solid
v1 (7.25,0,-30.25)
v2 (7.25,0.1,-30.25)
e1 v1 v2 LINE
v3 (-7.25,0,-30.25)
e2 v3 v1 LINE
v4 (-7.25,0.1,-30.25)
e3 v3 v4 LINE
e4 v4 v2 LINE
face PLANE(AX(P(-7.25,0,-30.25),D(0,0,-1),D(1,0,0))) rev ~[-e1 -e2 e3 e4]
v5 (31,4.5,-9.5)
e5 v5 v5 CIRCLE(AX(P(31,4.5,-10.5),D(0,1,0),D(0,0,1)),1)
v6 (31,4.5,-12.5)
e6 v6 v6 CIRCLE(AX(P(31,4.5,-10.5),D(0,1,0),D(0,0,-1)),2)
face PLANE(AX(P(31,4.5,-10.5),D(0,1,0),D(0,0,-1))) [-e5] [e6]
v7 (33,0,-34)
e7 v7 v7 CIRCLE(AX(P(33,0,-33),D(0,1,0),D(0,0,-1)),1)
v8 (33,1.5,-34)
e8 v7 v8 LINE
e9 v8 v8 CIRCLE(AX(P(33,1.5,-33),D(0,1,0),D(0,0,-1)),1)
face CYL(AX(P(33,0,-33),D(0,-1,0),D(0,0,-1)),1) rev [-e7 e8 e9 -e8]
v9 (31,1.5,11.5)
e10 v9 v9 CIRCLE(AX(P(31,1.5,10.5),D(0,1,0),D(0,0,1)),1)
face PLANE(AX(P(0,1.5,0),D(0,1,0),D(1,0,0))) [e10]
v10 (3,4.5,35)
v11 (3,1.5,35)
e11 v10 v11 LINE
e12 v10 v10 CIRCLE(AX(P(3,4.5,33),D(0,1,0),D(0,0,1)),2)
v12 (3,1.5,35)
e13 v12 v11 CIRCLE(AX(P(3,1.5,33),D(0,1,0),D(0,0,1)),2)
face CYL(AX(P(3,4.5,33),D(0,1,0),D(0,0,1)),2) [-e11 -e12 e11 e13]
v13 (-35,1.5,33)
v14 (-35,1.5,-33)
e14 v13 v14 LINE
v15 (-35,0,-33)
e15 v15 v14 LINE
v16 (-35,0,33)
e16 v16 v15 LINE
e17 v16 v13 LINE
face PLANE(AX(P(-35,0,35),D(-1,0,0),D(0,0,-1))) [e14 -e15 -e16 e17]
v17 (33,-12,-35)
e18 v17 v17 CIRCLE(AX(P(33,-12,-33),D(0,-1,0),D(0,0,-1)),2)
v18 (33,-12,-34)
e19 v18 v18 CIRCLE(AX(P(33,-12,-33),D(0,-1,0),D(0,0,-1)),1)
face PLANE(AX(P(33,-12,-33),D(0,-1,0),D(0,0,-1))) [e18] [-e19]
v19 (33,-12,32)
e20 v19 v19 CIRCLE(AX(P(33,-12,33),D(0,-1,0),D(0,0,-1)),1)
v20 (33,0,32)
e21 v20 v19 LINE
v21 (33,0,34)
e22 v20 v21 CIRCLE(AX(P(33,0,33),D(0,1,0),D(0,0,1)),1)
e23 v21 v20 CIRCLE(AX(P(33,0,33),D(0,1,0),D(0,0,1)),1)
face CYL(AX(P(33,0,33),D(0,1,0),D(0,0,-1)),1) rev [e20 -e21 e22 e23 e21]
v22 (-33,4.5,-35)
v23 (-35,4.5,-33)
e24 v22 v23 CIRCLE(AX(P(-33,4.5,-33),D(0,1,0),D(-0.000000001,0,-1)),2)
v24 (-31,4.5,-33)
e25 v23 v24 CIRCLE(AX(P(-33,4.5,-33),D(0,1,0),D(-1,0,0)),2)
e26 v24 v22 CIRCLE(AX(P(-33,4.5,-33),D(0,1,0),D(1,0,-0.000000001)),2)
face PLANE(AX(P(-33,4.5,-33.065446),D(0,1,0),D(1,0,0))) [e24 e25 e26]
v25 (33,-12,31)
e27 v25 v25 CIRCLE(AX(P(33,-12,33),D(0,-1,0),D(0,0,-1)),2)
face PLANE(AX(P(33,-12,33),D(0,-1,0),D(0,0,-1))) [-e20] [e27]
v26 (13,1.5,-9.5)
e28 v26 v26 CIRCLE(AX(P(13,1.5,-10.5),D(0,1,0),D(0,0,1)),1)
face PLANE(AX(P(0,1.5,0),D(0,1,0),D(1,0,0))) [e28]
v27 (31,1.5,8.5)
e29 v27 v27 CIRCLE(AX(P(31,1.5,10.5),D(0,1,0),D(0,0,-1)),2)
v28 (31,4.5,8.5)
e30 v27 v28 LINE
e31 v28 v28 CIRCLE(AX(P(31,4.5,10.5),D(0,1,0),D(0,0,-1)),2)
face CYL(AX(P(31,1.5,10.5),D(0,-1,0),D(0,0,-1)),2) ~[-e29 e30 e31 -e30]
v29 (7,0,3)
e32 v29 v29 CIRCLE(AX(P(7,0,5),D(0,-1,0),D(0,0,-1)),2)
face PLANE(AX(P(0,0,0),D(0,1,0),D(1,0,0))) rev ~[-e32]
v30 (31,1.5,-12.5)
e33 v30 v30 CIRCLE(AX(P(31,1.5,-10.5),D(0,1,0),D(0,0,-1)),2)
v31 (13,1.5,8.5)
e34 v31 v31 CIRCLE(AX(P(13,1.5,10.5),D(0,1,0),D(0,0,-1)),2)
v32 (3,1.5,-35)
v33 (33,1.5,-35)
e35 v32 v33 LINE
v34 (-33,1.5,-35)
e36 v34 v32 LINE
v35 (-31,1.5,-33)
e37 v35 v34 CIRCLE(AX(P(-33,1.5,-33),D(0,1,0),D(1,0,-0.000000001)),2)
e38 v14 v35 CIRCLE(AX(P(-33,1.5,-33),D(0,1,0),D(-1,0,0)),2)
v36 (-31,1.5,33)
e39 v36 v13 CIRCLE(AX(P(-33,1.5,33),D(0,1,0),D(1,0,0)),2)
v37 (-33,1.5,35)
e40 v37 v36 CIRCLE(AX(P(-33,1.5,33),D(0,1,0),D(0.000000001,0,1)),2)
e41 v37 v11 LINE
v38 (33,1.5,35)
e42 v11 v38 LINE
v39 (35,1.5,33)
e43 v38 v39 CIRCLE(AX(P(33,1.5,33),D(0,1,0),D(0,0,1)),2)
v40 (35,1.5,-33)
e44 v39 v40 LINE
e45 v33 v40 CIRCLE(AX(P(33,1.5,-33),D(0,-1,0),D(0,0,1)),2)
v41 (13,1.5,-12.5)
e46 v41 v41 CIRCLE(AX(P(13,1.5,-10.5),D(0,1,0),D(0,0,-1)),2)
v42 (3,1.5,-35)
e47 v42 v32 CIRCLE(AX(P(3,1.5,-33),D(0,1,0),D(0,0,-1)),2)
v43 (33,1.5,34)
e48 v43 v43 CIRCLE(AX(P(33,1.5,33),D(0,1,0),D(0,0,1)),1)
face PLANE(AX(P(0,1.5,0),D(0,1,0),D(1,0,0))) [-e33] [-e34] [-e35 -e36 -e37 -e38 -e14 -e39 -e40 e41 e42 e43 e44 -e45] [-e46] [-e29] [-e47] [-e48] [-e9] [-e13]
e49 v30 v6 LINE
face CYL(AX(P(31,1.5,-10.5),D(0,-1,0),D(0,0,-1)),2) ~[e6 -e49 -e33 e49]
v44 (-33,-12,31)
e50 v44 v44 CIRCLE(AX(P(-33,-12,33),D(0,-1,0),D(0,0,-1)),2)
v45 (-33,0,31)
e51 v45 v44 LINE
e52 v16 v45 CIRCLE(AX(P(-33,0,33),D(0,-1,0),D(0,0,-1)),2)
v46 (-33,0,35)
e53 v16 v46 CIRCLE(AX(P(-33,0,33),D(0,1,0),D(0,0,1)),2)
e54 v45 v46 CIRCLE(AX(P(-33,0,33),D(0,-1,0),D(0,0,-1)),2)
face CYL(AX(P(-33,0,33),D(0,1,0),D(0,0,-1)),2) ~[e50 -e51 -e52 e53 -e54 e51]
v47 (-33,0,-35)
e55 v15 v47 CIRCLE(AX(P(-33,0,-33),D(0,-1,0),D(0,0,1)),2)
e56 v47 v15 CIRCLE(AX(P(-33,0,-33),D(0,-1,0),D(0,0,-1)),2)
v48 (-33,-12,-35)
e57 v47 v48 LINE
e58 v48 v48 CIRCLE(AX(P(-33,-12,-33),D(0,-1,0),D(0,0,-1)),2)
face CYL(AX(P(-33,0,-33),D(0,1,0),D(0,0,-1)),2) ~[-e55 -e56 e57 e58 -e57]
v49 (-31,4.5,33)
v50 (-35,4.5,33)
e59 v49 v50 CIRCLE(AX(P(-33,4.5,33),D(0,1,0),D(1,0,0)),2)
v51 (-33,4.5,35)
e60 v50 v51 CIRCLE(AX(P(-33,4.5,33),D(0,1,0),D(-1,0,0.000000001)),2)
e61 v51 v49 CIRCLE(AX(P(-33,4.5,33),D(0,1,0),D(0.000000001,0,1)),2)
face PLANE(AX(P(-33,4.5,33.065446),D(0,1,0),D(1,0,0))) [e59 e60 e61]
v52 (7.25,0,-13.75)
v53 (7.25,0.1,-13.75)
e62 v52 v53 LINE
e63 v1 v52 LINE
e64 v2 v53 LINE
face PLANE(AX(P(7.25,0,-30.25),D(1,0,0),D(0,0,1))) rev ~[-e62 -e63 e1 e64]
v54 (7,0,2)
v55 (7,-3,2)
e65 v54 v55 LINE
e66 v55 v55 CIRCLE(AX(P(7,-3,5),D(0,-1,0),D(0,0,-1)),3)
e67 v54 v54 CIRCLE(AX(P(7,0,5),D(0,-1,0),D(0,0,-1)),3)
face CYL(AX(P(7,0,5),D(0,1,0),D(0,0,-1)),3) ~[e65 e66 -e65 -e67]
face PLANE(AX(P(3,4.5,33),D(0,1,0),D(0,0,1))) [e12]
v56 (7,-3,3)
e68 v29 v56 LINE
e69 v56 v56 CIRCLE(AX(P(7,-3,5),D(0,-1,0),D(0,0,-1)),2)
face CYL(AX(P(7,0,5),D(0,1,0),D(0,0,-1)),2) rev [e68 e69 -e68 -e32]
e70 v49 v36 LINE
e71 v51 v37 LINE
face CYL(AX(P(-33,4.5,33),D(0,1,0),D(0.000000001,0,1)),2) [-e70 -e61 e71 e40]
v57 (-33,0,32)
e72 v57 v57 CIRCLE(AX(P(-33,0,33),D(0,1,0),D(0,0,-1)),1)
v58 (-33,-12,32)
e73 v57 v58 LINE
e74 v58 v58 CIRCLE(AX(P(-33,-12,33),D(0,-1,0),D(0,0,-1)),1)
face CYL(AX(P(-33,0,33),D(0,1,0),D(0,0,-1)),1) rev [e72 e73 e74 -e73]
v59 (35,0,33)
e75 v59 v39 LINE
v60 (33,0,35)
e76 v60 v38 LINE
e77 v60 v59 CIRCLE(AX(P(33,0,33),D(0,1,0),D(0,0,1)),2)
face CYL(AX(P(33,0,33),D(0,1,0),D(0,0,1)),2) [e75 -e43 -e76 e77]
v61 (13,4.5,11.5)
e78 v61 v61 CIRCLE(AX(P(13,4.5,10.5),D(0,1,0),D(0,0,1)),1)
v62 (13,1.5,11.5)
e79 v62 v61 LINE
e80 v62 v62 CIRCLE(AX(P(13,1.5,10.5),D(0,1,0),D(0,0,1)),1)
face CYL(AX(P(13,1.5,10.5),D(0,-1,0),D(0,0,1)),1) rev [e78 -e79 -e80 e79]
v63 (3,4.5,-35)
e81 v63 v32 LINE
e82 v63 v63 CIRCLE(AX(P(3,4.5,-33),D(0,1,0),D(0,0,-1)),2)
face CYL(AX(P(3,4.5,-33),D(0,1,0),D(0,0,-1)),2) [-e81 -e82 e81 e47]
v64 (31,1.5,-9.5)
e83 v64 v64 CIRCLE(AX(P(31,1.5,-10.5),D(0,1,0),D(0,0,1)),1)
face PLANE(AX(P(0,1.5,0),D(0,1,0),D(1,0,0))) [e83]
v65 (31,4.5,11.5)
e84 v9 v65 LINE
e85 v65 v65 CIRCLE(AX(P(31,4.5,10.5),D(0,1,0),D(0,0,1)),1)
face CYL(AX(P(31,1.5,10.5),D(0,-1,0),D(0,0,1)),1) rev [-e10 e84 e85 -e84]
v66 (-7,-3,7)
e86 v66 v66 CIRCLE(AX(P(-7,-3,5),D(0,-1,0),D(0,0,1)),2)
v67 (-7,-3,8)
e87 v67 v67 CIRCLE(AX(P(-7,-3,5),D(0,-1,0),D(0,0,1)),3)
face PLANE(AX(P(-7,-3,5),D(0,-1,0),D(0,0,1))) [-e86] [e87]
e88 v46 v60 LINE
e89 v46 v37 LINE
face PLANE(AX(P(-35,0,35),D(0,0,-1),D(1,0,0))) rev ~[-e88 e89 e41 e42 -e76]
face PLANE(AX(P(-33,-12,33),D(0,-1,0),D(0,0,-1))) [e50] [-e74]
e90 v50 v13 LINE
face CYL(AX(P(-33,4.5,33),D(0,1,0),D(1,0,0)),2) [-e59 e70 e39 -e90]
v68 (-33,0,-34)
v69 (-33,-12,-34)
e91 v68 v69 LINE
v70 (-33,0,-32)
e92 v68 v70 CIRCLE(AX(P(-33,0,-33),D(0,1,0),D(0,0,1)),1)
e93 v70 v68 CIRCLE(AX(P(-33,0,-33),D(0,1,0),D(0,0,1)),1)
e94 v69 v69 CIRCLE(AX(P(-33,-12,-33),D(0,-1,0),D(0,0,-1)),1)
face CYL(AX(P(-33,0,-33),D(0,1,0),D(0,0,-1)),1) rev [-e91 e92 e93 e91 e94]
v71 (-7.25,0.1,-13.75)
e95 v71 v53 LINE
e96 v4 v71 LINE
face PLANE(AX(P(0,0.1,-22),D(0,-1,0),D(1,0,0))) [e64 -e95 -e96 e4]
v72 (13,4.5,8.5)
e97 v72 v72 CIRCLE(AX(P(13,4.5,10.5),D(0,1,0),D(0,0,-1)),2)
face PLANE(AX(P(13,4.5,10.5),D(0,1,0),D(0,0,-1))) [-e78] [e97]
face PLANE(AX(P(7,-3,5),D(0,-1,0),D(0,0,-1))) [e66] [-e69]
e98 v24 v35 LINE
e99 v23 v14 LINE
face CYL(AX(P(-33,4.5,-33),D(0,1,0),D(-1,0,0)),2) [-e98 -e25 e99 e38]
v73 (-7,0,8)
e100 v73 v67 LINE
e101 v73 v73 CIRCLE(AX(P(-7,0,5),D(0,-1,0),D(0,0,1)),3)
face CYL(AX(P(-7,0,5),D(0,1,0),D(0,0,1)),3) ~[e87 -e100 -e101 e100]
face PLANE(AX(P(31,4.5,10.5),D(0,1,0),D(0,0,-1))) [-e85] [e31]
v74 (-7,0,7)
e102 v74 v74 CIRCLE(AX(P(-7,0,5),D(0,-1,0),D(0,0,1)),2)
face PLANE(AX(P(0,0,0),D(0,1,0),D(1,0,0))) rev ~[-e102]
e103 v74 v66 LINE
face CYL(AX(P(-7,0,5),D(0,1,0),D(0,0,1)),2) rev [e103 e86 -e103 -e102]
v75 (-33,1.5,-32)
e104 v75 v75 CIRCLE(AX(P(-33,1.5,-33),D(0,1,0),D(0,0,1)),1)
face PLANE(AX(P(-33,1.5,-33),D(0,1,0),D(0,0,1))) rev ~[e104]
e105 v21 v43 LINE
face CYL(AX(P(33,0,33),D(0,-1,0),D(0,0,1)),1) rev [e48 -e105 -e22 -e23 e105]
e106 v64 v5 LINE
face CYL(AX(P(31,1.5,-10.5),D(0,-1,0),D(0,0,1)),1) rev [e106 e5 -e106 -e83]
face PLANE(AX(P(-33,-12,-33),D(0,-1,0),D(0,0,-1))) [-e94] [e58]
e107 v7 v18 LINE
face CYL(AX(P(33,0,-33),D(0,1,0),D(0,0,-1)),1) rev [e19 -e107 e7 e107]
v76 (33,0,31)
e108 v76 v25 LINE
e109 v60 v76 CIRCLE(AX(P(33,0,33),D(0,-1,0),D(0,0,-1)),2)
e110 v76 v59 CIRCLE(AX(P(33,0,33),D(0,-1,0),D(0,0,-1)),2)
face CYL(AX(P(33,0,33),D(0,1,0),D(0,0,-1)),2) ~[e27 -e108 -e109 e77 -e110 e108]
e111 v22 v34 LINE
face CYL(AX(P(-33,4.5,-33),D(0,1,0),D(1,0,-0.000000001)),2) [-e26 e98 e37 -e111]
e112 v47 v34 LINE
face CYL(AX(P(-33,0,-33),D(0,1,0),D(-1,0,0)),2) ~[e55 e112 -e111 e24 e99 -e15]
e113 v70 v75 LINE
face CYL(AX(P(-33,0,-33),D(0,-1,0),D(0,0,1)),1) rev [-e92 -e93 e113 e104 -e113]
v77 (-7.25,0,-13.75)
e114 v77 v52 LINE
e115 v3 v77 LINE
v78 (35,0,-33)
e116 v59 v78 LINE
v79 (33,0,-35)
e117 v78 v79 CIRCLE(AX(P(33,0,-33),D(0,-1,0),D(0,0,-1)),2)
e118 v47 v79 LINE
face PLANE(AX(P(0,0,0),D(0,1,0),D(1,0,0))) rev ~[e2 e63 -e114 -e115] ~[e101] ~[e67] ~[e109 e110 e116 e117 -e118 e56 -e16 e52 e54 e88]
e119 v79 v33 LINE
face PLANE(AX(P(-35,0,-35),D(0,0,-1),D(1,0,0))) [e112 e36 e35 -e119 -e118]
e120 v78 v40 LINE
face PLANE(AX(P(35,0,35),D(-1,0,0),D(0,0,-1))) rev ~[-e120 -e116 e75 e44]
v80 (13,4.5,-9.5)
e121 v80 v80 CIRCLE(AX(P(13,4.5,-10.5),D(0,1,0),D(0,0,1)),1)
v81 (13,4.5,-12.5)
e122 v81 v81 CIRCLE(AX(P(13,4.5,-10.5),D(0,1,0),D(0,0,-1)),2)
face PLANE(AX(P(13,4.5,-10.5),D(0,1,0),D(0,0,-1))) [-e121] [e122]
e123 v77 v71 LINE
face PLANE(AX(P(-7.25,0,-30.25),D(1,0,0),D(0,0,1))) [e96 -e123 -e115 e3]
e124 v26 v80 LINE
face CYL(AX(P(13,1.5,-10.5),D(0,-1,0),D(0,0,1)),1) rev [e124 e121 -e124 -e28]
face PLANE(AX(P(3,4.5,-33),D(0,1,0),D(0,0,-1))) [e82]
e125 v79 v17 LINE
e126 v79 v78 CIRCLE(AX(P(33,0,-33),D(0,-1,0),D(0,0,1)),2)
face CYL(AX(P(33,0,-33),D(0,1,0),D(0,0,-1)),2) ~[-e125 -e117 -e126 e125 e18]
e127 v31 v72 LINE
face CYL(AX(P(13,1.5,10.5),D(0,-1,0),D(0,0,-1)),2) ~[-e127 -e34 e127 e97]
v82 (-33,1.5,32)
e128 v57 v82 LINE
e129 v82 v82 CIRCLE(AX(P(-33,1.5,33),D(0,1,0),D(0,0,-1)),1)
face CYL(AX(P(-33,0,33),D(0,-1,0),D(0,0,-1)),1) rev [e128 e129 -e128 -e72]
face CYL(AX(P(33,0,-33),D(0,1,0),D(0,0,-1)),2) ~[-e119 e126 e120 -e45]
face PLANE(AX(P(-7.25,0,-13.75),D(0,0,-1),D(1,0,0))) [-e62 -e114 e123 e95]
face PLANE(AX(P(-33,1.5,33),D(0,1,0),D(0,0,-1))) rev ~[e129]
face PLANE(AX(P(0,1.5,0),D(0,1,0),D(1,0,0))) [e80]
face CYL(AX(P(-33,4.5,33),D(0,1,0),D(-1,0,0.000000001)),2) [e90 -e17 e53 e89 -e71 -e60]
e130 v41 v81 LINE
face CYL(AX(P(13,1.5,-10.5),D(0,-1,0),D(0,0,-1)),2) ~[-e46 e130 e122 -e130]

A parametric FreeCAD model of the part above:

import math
import FreeCAD as App
import Part
import Sketcher
from FreeCAD import Vector
Q = App.Units.Quantity


def edges_at(feature, points):
    """Names of the edges that pass closest to the given points."""
    edges = feature.Shape.Edges
    near = lambda p: min(range(len(edges)), key=lambda i: edges[i].distToShape(Part.Vertex(*p))[0])
    return sorted({f"Edge{near(p) + 1}" for p in points})


def add_polygon(sketch, points):
    """Adds a closed chain of lines whose ends are joined by coincident constraints."""
    first, n = sketch.GeometryCount, len(points)
    for a, b in zip(points, points[1:] + points[:1]):
        sketch.addGeometry(Part.LineSegment(App.Vector(*a, 0), App.Vector(*b, 0)), False)
    for i in range(n):
        sketch.addConstraint(Sketcher.Constraint("Coincident", first + i, 2, first + (i + 1) % n, 1))

doc = App.newDocument("Part")
body = doc.addObject("PartDesign::Body", "Body")

# Sketch on XZ plane
sketch1 = body.newObject("Sketcher::SketchObject", "Sketch")
sketch1.AttachmentSupport = (doc.getObject("XZ_Plane"), [""])
sketch1.MapMode = "FlatFace"
add_polygon(sketch1, [(-35, -35), (-35, 35), (35, 35), (35, -35)])  # lines 0-3
sketch1.addGeometry(Part.Circle(Vector(-33, 33, 0), Vector(0, 0, 1), 1), False)  # 4
sketch1.addGeometry(Part.Circle(Vector(33, 33, 0), Vector(0, 0, 1), 1), False)  # 5
sketch1.addGeometry(Part.Circle(Vector(-33, -33, 0), Vector(0, 0, 1), 1), False)  # 6
sketch1.addGeometry(Part.Circle(Vector(33, -33, 0), Vector(0, 0, 1), 1), False)  # 7
sketch1.addConstraint([
    Sketcher.Constraint("Vertical", 0),
    Sketcher.Constraint("Horizontal", 1),
    Sketcher.Constraint("Vertical", 2),
    Sketcher.Constraint("Horizontal", 3),
    Sketcher.Constraint("Equal", 4, 5),
    Sketcher.Constraint("Equal", 5, 6),
    Sketcher.Constraint("Equal", 6, 7),
    Sketcher.Constraint("Symmetric", 5, 3, 6, 3, -1, 1),
    Sketcher.Constraint("Symmetric", 4, 3, 7, 3, -1, 1),
    Sketcher.Constraint("Symmetric", 0, 2, 2, 2, -1, 1),
    Sketcher.Constraint("Symmetric", 4, 3, 5, 3, -2),
    Sketcher.Constraint("Equal", 3, 0),
    Sketcher.Constraint("Diameter", 4, Q("2 mm")),
    Sketcher.Constraint("DistanceX", 1, 1, 1, 2, Q("70 mm")),
    Sketcher.Constraint("DistanceX", 4, 3, -1, 1, Q("33 mm")),
    Sketcher.Constraint("DistanceY", -1, 1, 4, 3, Q("33 mm")),
])
pad1 = body.newObject("PartDesign::Pad", "Pad")
pad1.Profile = sketch1
pad1.Length = 1.5
pad1.Reversed = True
doc.recompute()

fillet = body.newObject("PartDesign::Fillet", "Fillet")
fillet.Base = (pad1, edges_at(pad1, [
    (35, 0.75, 35),
    (-35, 0.75, 35),
    (-35, 0.75, -35),
    (35, 0.75, -35),
]))
fillet.Radius = 2

# Sketch on XZ plane
sketch2 = body.newObject("Sketcher::SketchObject", "Sketch001")
sketch2.AttachmentSupport = (doc.getObject("XZ_Plane"), [""])
sketch2.MapMode = "FlatFace"
add_polygon(sketch2, [(-7, -14), (-7, -30), (7, -30), (7, -14)])  # lines 0-3
sketch2.addConstraint([
    Sketcher.Constraint("Vertical", 0),
    Sketcher.Constraint("Horizontal", 1),
    Sketcher.Constraint("Vertical", 2),
    Sketcher.Constraint("Horizontal", 3),
    Sketcher.Constraint("DistanceX", 1, 1, 1, 2, Q("14.5 mm")),
    Sketcher.Constraint("DistanceY", 0, 2, 0, 1, Q("16.5 mm")),
    Sketcher.Constraint("DistanceX", 0, 2, -1, 1, Q("7.25 mm")),
    Sketcher.Constraint("DistanceY", 0, 2, -1, 1, Q("30.25 mm")),
])
pocket1 = body.newObject("PartDesign::Pocket", "Pocket")
pocket1.Profile = sketch2
pocket1.Length = 0.1

# Sketch on XZ plane
sketch3 = body.newObject("Sketcher::SketchObject", "Sketch002")
sketch3.AttachmentSupport = (doc.getObject("XZ_Plane"), [""])
sketch3.MapMode = "FlatFace"
sketch3.addGeometry([
    Part.Circle(Vector(7, 5, 0), Vector(0, 0, 1), 3),
    Part.Circle(Vector(7, 5, 0), Vector(0, 0, 1), 2),
    Part.Circle(Vector(-7, 5, 0), Vector(0, 0, 1), 3),
    Part.Circle(Vector(-7, 5, 0), Vector(0, 0, 1), 2),
], False)
sketch3.addConstraint([
    Sketcher.Constraint("Coincident", 1, 3, 0, 3),
    Sketcher.Constraint("Coincident", 3, 3, 2, 3),
    Sketcher.Constraint("Equal", 0, 2),
    Sketcher.Constraint("Equal", 1, 3),
    Sketcher.Constraint("Symmetric", 0, 3, 2, 3, -2),
    Sketcher.Constraint("Diameter", 0, Q("6 mm")),
    Sketcher.Constraint("Diameter", 1, Q("4 mm")),
    Sketcher.Constraint("DistanceX", -1, 1, 0, 3, Q("7 mm")),
    Sketcher.Constraint("DistanceY", -1, 1, 0, 3, Q("5 mm")),
])
pad2 = body.newObject("PartDesign::Pad", "Pad001")
pad2.Profile = sketch3
pad2.Length = 3

# Sketch on XZ plane
sketch4 = body.newObject("Sketcher::SketchObject", "Sketch003")
sketch4.AttachmentSupport = (doc.getObject("XZ_Plane"), [""])
sketch4.MapMode = "FlatFace"
sketch4.AttachmentOffset = App.Placement(Vector(0, 0, -4.5), App.Rotation())
sketch4.addGeometry([
    Part.ArcOfCircle(Part.Circle(Vector(-33, 33, 0), Vector(0, 0, 1), 2), math.radians(90), math.radians(180)),  # 0
    Part.ArcOfCircle(Part.Circle(Vector(-33, 33, 0), Vector(0, 0, 1), 2), math.radians(0), math.radians(90)),  # 1
    Part.ArcOfCircle(Part.Circle(Vector(-33, 33, 0), Vector(0, 0, 1), 2), math.radians(180), math.radians(360)),  # 2
    Part.Circle(Vector(3, 33, 0), Vector(0, 0, 1), 2),  # 3
    Part.Circle(Vector(3, -33, 0), Vector(0, 0, 1), 2),  # 4
    Part.ArcOfCircle(Part.Circle(Vector(-33, -33, 0), Vector(0, 0, 1), 2), math.radians(-180), math.radians(-90)),  # 5
    Part.ArcOfCircle(Part.Circle(Vector(-33, -33, 0), Vector(0, 0, 1), 2), math.radians(0), math.radians(180)),  # 6
    Part.ArcOfCircle(Part.Circle(Vector(-33, -33, 0), Vector(0, 0, 1), 2), math.radians(-90), math.radians(0)),  # 7
], False)
sketch4.addConstraint([
    Sketcher.Constraint("Tangent", 0, 1, 1, 2),
    Sketcher.Constraint("Tangent", 1, 1, 2, 2),
    Sketcher.Constraint("Tangent", 2, 1, 0, 2),
    Sketcher.Constraint("Tangent", 5, 1, 6, 2),
    Sketcher.Constraint("Tangent", 6, 1, 7, 2),
    Sketcher.Constraint("Tangent", 7, 1, 5, 2),
    Sketcher.Constraint("Equal", 2, 3),
    Sketcher.Constraint("Equal", 3, 4),
    Sketcher.Constraint("Equal", 4, 5),
    Sketcher.Constraint("Symmetric", 3, 3, 4, 3, -1),
    Sketcher.Constraint("Symmetric", 0, 3, 5, 3, -1),
    Sketcher.Constraint("Horizontal", 2, 3, 3, 3),
    Sketcher.Constraint("Horizontal", 3, 3, 1, 1),
    Sketcher.Constraint("Horizontal", 1, 1, 2, 1),
    Sketcher.Constraint("Horizontal", 7, 3, 5, 1),
    Sketcher.Constraint("Horizontal", 5, 1, 6, 1),
    Sketcher.Constraint("Vertical", 7, 3, 0, 1),
    Sketcher.Constraint("Vertical", 0, 1, 7, 1),
    Sketcher.Constraint("Diameter", 3, Q("4 mm")),
    Sketcher.Constraint("DistanceX", 0, 3, -1, 1, Q("33 mm")),
    Sketcher.Constraint("DistanceY", -1, 1, 0, 3, Q("33 mm")),
    Sketcher.Constraint("DistanceX", -1, 1, 3, 3, Q("3 mm")),
])
pad3 = body.newObject("PartDesign::Pad", "Pad002")
pad3.Profile = sketch4
pad3.Length = 3

# Sketch on XZ plane
sketch5 = body.newObject("Sketcher::SketchObject", "Sketch004")
sketch5.AttachmentSupport = (doc.getObject("XZ_Plane"), [""])
sketch5.MapMode = "FlatFace"
sketch5.AttachmentOffset = App.Placement(Vector(0, 0, -1.5), App.Rotation())
sketch5.addGeometry([
    Part.Circle(Vector(13, -10.5, 0), Vector(0, 0, 1), 2),  # 0
    Part.Circle(Vector(13, -10.5, 0), Vector(0, 0, 1), 1),  # 1
    Part.Circle(Vector(31, -10.5, 0), Vector(0, 0, 1), 2),  # 2
    Part.Circle(Vector(31, -10.5, 0), Vector(0, 0, 1), 1),  # 3
    Part.Circle(Vector(31, 10.5, 0), Vector(0, 0, 1), 2),  # 4
    Part.Circle(Vector(31, 10.5, 0), Vector(0, 0, 1), 1),  # 5
    Part.Circle(Vector(13, 10.5, 0), Vector(0, 0, 1), 2),  # 6
    Part.Circle(Vector(13, 10.5, 0), Vector(0, 0, 1), 1),  # 7
], False)
sketch5.addConstraint([
    Sketcher.Constraint("Coincident", 1, 3, 0, 3),
    Sketcher.Constraint("Coincident", 3, 3, 2, 3),
    Sketcher.Constraint("Coincident", 5, 3, 4, 3),
    Sketcher.Constraint("Coincident", 7, 3, 6, 3),
    Sketcher.Constraint("Equal", 0, 2),
    Sketcher.Constraint("Equal", 1, 3),
    Sketcher.Constraint("Equal", 2, 4),
    Sketcher.Constraint("Equal", 3, 5),
    Sketcher.Constraint("Equal", 4, 6),
    Sketcher.Constraint("Equal", 5, 7),
    Sketcher.Constraint("Symmetric", 2, 3, 4, 3, -1),
    Sketcher.Constraint("Symmetric", 0, 3, 6, 3, -1),
    Sketcher.Constraint("Horizontal", 1, 3, 2, 3),
    Sketcher.Constraint("Diameter", 0, Q("4 mm")),
    Sketcher.Constraint("Diameter", 1, Q("2 mm")),
    Sketcher.Constraint("DistanceX", -1, 1, 0, 3, Q("13 mm")),
    Sketcher.Constraint("DistanceX", -1, 1, 2, 3, Q("31 mm")),
    Sketcher.Constraint("DistanceY", 2, 3, 4, 3, Q("21 mm")),
])
pad4 = body.newObject("PartDesign::Pad", "Pad003")
pad4.Profile = sketch5
pad4.Length = 3
pad4.Reversed = True

# Sketch on XZ plane
sketch6 = body.newObject("Sketcher::SketchObject", "Sketch005")
sketch6.AttachmentSupport = (doc.getObject("XZ_Plane"), [""])
sketch6.MapMode = "FlatFace"
sketch6.addGeometry([
    Part.Circle(Vector(-33, 33, 0), Vector(0, 0, 1), 2),  # 0
    Part.Circle(Vector(-33, 33, 0), Vector(0, 0, 1), 1),  # 1
    Part.Circle(Vector(33, 33, 0), Vector(0, 0, 1), 2),  # 2
    Part.Circle(Vector(33, 33, 0), Vector(0, 0, 1), 1),  # 3
    Part.Circle(Vector(33, -33, 0), Vector(0, 0, 1), 2),  # 4
    Part.Circle(Vector(33, -33, 0), Vector(0, 0, 1), 1),  # 5
    Part.Circle(Vector(-33, -33, 0), Vector(0, 0, 1), 2),  # 6
    Part.Circle(Vector(-33, -33, 0), Vector(0, 0, 1), 1),  # 7
], False)
sketch6.addConstraint([
    Sketcher.Constraint("Coincident", 1, 3, 0, 3),
    Sketcher.Constraint("Coincident", 3, 3, 2, 3),
    Sketcher.Constraint("Coincident", 5, 3, 4, 3),
    Sketcher.Constraint("Coincident", 7, 3, 6, 3),
    Sketcher.Constraint("Equal", 0, 2),
    Sketcher.Constraint("Equal", 1, 3),
    Sketcher.Constraint("Equal", 2, 4),
    Sketcher.Constraint("Equal", 3, 5),
    Sketcher.Constraint("Equal", 4, 6),
    Sketcher.Constraint("Equal", 5, 7),
    Sketcher.Constraint("Symmetric", 0, 3, 4, 3, -1, 1),
    Sketcher.Constraint("Symmetric", 2, 3, 6, 3, -1, 1),
    Sketcher.Constraint("Symmetric", 0, 3, 2, 3, -2),
    Sketcher.Constraint("Diameter", 0, Q("4 mm")),
    Sketcher.Constraint("Diameter", 1, Q("2 mm")),
    Sketcher.Constraint("DistanceX", 0, 3, -1, 1, Q("33 mm")),
    Sketcher.Constraint("DistanceY", -1, 1, 0, 3, Q("33 mm")),
])
pad5 = body.newObject("PartDesign::Pad", "Pad004")
pad5.Profile = sketch6
pad5.Length = 12

doc.recompute()
